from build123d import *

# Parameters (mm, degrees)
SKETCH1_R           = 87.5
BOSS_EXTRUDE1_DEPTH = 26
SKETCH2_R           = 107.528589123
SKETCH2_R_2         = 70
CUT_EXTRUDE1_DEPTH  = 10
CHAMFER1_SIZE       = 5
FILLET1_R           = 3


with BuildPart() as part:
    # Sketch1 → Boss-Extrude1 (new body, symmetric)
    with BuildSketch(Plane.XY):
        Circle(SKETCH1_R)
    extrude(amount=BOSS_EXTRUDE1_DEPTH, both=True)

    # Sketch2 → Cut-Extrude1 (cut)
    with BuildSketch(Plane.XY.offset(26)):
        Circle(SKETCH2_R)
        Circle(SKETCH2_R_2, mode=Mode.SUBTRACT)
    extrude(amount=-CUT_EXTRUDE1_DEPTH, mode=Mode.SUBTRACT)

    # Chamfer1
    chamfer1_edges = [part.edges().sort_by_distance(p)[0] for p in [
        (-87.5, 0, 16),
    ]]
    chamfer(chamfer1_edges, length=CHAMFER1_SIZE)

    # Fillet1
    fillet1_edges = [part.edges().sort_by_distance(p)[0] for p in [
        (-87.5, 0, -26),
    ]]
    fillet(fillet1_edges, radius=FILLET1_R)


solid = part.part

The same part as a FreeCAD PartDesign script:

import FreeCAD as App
import Part
import Sketcher

V = App.Vector
Q = App.Units.Quantity


def edges_at(feature, points):
    """Names of the edges that pass closest to the given points."""
    edges = feature.Shape.Edges
    near = lambda p: min(range(len(edges)), key=lambda i: edges[i].distToShape(Part.Vertex(*p))[0])
    return sorted({f"Edge{near(p) + 1}" for p in points})

doc = App.newDocument("Part")
body = doc.addObject("PartDesign::Body", "Body")

sketch1 = body.newObject("Sketcher::SketchObject", "Sketch")
sketch1.AttachmentSupport = (doc.getObject("XY_Plane"), [""])
sketch1.MapMode = "FlatFace"
sketch1.addGeometry(Part.Circle(V(0, 0, 0), V(0, 0, 1), 87.5), False)
sketch1.addConstraint(Sketcher.Constraint("Coincident", 0, 3, -1, 1))
sketch1.addConstraint(Sketcher.Constraint("Diameter", 0, Q("175 mm")))
pad1 = body.newObject("PartDesign::Pad", "Pad")
pad1.Profile = sketch1
pad1.Length = 52
pad1.Midplane = True

sketch2 = body.newObject("Sketcher::SketchObject", "Sketch001")
sketch2.AttachmentSupport = (doc.getObject("XY_Plane"), [""])
sketch2.MapMode = "FlatFace"
sketch2.AttachmentOffset = App.Placement(V(0, 0, 26), App.Rotation())
sketch2.addGeometry(Part.Circle(V(0, 0, 0), V(0, 0, 1), 107.528589), False)
sketch2.addGeometry(Part.Circle(V(0, 0, 0), V(0, 0, 1), 70), False)
sketch2.addConstraint(Sketcher.Constraint("Coincident", 0, 3, -1, 1))
sketch2.addConstraint(Sketcher.Constraint("Coincident", 1, 3, -1, 1))
sketch2.addConstraint(Sketcher.Constraint("Diameter", 1, Q("140 mm")))
sketch2.addConstraint(Sketcher.Constraint("Diameter", 0, Q("215.057178 mm")))
pocket1 = body.newObject("PartDesign::Pocket", "Pocket")
pocket1.Profile = sketch2
pocket1.Length = 10
doc.recompute()

chamfer = body.newObject("PartDesign::Chamfer", "Chamfer")
chamfer.Base = (pocket1, edges_at(pocket1, [(-87.5, 0, 16)]))
chamfer.Size = 5
doc.recompute()

fillet = body.newObject("PartDesign::Fillet", "Fillet")
fillet.Base = (chamfer, edges_at(chamfer, [(-87.5, 0, -26)]))
fillet.Radius = 3

doc.recompute()
